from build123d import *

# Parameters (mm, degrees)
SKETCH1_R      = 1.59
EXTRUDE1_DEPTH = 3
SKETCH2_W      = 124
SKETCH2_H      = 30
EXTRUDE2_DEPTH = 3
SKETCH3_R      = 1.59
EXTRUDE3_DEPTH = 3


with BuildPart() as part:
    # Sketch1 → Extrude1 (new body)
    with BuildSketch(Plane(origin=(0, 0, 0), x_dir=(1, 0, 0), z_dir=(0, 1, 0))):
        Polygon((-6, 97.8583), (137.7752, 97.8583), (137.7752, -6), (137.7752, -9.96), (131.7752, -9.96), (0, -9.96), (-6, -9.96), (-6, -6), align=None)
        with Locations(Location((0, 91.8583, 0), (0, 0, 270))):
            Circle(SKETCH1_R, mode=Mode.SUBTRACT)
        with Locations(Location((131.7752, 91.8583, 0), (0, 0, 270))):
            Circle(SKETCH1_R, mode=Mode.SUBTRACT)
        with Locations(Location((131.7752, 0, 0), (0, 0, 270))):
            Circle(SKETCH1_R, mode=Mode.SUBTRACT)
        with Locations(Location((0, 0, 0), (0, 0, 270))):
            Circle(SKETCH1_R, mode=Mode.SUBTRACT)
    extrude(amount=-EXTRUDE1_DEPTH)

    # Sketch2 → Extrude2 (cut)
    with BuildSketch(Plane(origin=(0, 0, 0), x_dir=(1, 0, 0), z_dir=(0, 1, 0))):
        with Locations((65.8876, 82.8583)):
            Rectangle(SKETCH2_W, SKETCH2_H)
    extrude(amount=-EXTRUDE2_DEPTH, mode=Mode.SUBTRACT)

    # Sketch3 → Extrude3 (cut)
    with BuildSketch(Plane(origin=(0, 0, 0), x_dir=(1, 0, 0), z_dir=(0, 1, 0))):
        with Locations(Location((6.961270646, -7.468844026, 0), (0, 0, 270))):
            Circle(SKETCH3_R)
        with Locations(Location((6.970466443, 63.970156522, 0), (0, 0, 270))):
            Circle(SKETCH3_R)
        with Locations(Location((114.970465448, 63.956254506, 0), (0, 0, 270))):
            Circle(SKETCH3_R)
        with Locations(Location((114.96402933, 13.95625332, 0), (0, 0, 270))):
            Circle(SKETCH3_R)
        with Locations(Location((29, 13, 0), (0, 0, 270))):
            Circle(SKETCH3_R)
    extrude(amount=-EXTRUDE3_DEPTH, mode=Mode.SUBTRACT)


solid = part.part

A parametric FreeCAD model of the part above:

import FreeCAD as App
import Part
import Sketcher
from FreeCAD import Vector
Q = App.Units.Quantity


def add_polygon(sketch, points):
    """Adds a closed chain of lines whose ends are joined by coincident constraints."""
    first, n = sketch.GeometryCount, len(points)
    for a, b in zip(points, points[1:] + points[:1]):
        sketch.addGeometry(Part.LineSegment(App.Vector(*a, 0), App.Vector(*b, 0)), False)
    for i in range(n):
        sketch.addConstraint(Sketcher.Constraint("Coincident", first + i, 2, first + (i + 1) % n, 1))

doc = App.newDocument("Part")
body = doc.addObject("PartDesign::Body", "Body")

# Sketch on XZ plane
sketch1 = body.newObject("Sketcher::SketchObject", "Sketch")
sketch1.AttachmentSupport = (doc.getObject("XZ_Plane"), [""])
sketch1.MapMode = "FlatFace"
add_polygon(sketch1, [(137.8, -97.9), (-6, -97.9), (-6, 10), (137.8, 10)])  # lines 0-3
sketch1.addGeometry(Part.Circle(Vector(131.8, 0, 0), Vector(0, 0, 1), 1.6), False)  # 4
sketch1.addGeometry(Part.Circle(Vector(0, 0, 0), Vector(0, 0, 1), 1.6), False)  # 5
sketch1.addGeometry(Part.Circle(Vector(131.8, -91.9, 0), Vector(0, 0, 1), 1.6), False)  # 6
sketch1.addGeometry(Part.Circle(Vector(0, -91.9, 0), Vector(0, 0, 1), 1.6), False)  # 7
sketch1.addConstraint(Sketcher.Constraint("Horizontal", 0))
sketch1.addConstraint(Sketcher.Constraint("Vertical", 1))
sketch1.addConstraint(Sketcher.Constraint("Horizontal", 2))
sketch1.addConstraint(Sketcher.Constraint("Vertical", 3))
sketch1.addConstraint(Sketcher.Constraint("Coincident", 5, 3, -1, 1))
sketch1.addConstraint(Sketcher.Constraint("Equal", 4, 5))
sketch1.addConstraint(Sketcher.Constraint("Equal", 5, 6))
sketch1.addConstraint(Sketcher.Constraint("Equal", 6, 7))
sketch1.addConstraint(Sketcher.Constraint("PointOnObject", 4, 3, -1))
sketch1.addConstraint(Sketcher.Constraint("PointOnObject", 7, 3, -2))
sketch1.addConstraint(Sketcher.Constraint("Horizontal", 6, 3, 7, 3))
sketch1.addConstraint(Sketcher.Constraint("Vertical", 4, 3, 6, 3))
sketch1.addConstraint(Sketcher.Constraint("Diameter", 4, Q("3.18 mm")))
sketch1.addConstraint(Sketcher.Constraint("DistanceX", 0, 2, -1, 1, Q("6 mm")))
sketch1.addConstraint(Sketcher.Constraint("DistanceY", 0, 2, 7, 3, Q("6 mm")))
sketch1.addConstraint(Sketcher.Constraint("DistanceX", 4, 3, 2, 2, Q("6 mm")))
sketch1.addConstraint(Sketcher.Constraint("DistanceY", -1, 1, 1, 2, Q("9.96 mm")))
sketch1.addConstraint(Sketcher.Constraint("DistanceX", 0, 2, 0, 1, Q("143.7752 mm")))
sketch1.addConstraint(Sketcher.Constraint("DistanceY", 1, 1, 1, 2, Q("107.8183 mm")))
pad1 = body.newObject("PartDesign::Pad", "Pad")
pad1.Profile = sketch1
pad1.Length = 3

# Sketch on XZ plane
sketch2 = body.newObject("Sketcher::SketchObject", "Sketch001")
sketch2.AttachmentSupport = (doc.getObject("XZ_Plane"), [""])
sketch2.MapMode = "FlatFace"
add_polygon(sketch2, [(4, -98), (4, -68), (128, -68), (128, -98)])  # lines 0-3
sketch2.addConstraint(Sketcher.Constraint("Vertical", 0))
sketch2.addConstraint(Sketcher.Constraint("Horizontal", 1))
sketch2.addConstraint(Sketcher.Constraint("Vertical", 2))
sketch2.addConstraint(Sketcher.Constraint("Horizontal", 3))
sketch2.addConstraint(Sketcher.Constraint("DistanceX", 1, 1, 1, 2, Q("124 mm")))
sketch2.addConstraint(Sketcher.Constraint("DistanceY", 0, 1, 0, 2, Q("30 mm")))
sketch2.addConstraint(Sketcher.Constraint("DistanceX", -1, 1, 0, 2, Q("3.8876 mm")))
sketch2.addConstraint(Sketcher.Constraint("DistanceY", 0, 2, -1, 1, Q("67.8583 mm")))
pocket1 = body.newObject("PartDesign::Pocket", "Pocket")
pocket1.Profile = sketch2
pocket1.Length = 3
pocket1.Reversed = True

# Sketch on XZ plane
sketch3 = body.newObject("Sketcher::SketchObject", "Sketch002")
sketch3.AttachmentSupport = (doc.getObject("XZ_Plane"), [""])
sketch3.MapMode = "FlatFace"
sketch3.addGeometry(Part.Circle(Vector(7, 7.5, 0), Vector(0, 0, 1), 1.6), False)
sketch3.addGeometry(Part.Circle(Vector(7, -64, 0), Vector(0, 0, 1), 1.6), False)
sketch3.addGeometry(Part.Circle(Vector(115, -64, 0), Vector(0, 0, 1), 1.6), False)
sketch3.addGeometry(Part.Circle(Vector(115, -14, 0), Vector(0, 0, 1), 1.6), False)
sketch3.addGeometry(Part.Circle(Vector(29, -13, 0), Vector(0, 0, 1), 1.6), False)
sketch3.addConstraint(Sketcher.Constraint("Equal", 0, 1))
sketch3.addConstraint(Sketcher.Constraint("Equal", 1, 2))
sketch3.addConstraint(Sketcher.Constraint("Equal", 2, 3))
sketch3.addConstraint(Sketcher.Constraint("Equal", 3, 4))
sketch3.addConstraint(Sketcher.Constraint("Diameter", 0, Q("3.18 mm")))
sketch3.addConstraint(Sketcher.Constraint("DistanceX", -1, 1, 4, 3, Q("29 mm")))
sketch3.addConstraint(Sketcher.Constraint("DistanceY", 4, 3, -1, 1, Q("13 mm")))
sketch3.addConstraint(Sketcher.Constraint("DistanceX", 1, 3, 2, 3, Q("107.999999 mm")))
sketch3.addConstraint(Sketcher.Constraint("DistanceY", 2, 3, 3, 3, Q("50.000001 mm")))
sketch3.addConstraint(Sketcher.Constraint("DistanceY", 1, 3, 0, 3, Q("71.439001 mm")))
sketch3.addConstraint(Sketcher.Constraint("DistanceY", 2, 3, 0, 3, Q("71.425099 mm")))
sketch3.addConstraint(Sketcher.Constraint("DistanceX", -1, 1, 0, 3, Q("6.961271 mm")))
sketch3.addConstraint(Sketcher.Constraint("DistanceX", -1, 1, 3, 3, Q("114.964029 mm")))
sketch3.addConstraint(Sketcher.Constraint("DistanceY", -1, 1, 0, 3, Q("7.468844 mm")))
sketch3.addConstraint(Sketcher.Constraint("DistanceX", -1, 1, 1, 3, Q("6.970466 mm")))
pocket2 = body.newObject("PartDesign::Pocket", "Pocket001")
pocket2.Profile = sketch3
pocket2.Length = 3
pocket2.Reversed = True

doc.recompute()
